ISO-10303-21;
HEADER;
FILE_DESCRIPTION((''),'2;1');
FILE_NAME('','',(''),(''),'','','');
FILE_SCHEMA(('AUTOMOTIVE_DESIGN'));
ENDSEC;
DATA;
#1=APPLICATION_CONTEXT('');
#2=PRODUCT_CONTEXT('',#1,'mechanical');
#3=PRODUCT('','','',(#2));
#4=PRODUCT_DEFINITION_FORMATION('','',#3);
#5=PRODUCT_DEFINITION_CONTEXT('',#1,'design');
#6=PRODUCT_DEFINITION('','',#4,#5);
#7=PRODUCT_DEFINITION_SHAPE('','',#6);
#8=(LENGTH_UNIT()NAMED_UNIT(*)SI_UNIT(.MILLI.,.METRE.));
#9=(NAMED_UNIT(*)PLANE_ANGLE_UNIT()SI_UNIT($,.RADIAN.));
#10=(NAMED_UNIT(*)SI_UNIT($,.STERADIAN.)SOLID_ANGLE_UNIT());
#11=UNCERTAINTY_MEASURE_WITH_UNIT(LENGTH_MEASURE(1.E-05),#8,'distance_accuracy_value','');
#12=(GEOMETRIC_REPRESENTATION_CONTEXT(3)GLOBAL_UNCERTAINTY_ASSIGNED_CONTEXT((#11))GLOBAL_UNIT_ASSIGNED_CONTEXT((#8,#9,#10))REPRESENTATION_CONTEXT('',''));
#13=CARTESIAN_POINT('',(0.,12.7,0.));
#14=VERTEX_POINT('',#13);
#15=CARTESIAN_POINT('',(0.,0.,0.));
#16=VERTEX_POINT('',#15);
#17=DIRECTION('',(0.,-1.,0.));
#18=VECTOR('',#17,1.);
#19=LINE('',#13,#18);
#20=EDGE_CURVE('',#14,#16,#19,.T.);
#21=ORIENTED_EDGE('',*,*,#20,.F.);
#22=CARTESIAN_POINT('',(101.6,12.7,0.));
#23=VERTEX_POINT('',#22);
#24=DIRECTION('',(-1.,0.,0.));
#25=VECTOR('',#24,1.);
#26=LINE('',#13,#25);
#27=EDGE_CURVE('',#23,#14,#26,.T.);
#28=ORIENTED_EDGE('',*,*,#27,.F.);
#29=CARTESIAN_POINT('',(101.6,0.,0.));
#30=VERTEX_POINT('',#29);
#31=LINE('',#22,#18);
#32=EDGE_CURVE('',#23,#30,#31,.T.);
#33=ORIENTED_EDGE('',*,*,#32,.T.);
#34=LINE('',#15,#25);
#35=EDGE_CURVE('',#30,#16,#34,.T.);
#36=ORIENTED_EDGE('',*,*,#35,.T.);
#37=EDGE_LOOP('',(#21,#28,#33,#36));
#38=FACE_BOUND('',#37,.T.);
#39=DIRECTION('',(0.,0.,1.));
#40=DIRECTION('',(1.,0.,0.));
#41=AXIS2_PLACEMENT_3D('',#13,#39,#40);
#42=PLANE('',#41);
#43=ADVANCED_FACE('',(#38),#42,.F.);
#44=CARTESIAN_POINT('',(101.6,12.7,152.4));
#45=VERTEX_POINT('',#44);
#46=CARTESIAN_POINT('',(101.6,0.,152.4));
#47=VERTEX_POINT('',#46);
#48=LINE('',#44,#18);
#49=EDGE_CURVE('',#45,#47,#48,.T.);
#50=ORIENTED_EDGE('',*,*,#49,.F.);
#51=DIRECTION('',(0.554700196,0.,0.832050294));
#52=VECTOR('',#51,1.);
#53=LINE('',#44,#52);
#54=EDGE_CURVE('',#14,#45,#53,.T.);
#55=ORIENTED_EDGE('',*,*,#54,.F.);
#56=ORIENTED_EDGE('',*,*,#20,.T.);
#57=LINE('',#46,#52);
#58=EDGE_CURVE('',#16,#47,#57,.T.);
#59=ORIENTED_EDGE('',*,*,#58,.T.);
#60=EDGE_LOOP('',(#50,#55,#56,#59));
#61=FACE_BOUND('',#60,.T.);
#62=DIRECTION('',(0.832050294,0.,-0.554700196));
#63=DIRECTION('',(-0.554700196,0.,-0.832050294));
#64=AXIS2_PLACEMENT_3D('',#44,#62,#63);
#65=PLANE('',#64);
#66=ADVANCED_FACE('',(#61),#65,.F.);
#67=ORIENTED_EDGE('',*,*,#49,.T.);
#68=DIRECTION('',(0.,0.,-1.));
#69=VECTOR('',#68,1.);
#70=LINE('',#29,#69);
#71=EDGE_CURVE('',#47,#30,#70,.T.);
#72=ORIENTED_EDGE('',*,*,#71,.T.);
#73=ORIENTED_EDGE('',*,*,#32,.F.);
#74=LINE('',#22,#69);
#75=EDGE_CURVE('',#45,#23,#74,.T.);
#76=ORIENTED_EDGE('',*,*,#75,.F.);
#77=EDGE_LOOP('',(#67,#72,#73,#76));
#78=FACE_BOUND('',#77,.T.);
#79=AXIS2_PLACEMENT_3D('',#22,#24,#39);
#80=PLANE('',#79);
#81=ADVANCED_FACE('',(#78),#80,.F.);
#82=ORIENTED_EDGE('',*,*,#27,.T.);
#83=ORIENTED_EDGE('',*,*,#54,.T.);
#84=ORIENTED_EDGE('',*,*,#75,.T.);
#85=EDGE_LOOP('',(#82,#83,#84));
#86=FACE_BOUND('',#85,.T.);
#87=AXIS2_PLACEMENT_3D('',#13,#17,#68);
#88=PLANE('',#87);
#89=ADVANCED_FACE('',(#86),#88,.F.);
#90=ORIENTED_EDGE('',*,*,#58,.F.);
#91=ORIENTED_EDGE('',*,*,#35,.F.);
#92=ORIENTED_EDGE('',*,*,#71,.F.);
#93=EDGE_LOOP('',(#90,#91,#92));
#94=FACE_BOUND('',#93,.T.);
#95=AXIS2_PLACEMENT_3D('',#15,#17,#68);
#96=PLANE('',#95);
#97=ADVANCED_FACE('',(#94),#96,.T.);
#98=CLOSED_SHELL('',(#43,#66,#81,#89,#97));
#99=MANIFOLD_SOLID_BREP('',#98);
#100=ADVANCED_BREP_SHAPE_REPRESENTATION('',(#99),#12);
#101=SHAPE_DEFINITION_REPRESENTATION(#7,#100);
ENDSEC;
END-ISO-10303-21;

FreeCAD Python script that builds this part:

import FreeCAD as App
import Part
import Sketcher

V = App.Vector
Q = App.Units.Quantity


def add_polygon(sketch, points):
    """Adds a closed chain of lines whose ends are joined by coincident constraints."""
    first, n = sketch.GeometryCount, len(points)
    for a, b in zip(points, points[1:] + points[:1]):
        sketch.addGeometry(Part.LineSegment(App.Vector(*a, 0), App.Vector(*b, 0)), False)
    for i in range(n):
        sketch.addConstraint(Sketcher.Constraint("Coincident", first + i, 2, first + (i + 1) % n, 1))

doc = App.newDocument("Part")
body = doc.addObject("PartDesign::Body", "Body")

# Sketch on XZ plane
sketch1 = body.newObject("Sketcher::SketchObject", "Sketch")
sketch1.AttachmentSupport = (doc.getObject("XZ_Plane"), [""])
sketch1.MapMode = "FlatFace"
add_polygon(sketch1, [(102, 0), (0, 0), (102, 152)])  # lines 0-2
sketch1.addConstraint([
    Sketcher.Constraint("Horizontal", 0),
    Sketcher.Constraint("Vertical", 2),
    Sketcher.Constraint("Coincident", 0, 2, -1, 1),
    Sketcher.Constraint("DistanceX", 0, 2, 0, 1, Q("4 in")),
    Sketcher.Constraint("DistanceY", 2, 2, 2, 1, Q("6 in")),
])
pad1 = body.newObject("PartDesign::Pad", "Pad")
pad1.Profile = sketch1
pad1.Length = Q("0.5 in")
pad1.Reversed = True

doc.recompute()
